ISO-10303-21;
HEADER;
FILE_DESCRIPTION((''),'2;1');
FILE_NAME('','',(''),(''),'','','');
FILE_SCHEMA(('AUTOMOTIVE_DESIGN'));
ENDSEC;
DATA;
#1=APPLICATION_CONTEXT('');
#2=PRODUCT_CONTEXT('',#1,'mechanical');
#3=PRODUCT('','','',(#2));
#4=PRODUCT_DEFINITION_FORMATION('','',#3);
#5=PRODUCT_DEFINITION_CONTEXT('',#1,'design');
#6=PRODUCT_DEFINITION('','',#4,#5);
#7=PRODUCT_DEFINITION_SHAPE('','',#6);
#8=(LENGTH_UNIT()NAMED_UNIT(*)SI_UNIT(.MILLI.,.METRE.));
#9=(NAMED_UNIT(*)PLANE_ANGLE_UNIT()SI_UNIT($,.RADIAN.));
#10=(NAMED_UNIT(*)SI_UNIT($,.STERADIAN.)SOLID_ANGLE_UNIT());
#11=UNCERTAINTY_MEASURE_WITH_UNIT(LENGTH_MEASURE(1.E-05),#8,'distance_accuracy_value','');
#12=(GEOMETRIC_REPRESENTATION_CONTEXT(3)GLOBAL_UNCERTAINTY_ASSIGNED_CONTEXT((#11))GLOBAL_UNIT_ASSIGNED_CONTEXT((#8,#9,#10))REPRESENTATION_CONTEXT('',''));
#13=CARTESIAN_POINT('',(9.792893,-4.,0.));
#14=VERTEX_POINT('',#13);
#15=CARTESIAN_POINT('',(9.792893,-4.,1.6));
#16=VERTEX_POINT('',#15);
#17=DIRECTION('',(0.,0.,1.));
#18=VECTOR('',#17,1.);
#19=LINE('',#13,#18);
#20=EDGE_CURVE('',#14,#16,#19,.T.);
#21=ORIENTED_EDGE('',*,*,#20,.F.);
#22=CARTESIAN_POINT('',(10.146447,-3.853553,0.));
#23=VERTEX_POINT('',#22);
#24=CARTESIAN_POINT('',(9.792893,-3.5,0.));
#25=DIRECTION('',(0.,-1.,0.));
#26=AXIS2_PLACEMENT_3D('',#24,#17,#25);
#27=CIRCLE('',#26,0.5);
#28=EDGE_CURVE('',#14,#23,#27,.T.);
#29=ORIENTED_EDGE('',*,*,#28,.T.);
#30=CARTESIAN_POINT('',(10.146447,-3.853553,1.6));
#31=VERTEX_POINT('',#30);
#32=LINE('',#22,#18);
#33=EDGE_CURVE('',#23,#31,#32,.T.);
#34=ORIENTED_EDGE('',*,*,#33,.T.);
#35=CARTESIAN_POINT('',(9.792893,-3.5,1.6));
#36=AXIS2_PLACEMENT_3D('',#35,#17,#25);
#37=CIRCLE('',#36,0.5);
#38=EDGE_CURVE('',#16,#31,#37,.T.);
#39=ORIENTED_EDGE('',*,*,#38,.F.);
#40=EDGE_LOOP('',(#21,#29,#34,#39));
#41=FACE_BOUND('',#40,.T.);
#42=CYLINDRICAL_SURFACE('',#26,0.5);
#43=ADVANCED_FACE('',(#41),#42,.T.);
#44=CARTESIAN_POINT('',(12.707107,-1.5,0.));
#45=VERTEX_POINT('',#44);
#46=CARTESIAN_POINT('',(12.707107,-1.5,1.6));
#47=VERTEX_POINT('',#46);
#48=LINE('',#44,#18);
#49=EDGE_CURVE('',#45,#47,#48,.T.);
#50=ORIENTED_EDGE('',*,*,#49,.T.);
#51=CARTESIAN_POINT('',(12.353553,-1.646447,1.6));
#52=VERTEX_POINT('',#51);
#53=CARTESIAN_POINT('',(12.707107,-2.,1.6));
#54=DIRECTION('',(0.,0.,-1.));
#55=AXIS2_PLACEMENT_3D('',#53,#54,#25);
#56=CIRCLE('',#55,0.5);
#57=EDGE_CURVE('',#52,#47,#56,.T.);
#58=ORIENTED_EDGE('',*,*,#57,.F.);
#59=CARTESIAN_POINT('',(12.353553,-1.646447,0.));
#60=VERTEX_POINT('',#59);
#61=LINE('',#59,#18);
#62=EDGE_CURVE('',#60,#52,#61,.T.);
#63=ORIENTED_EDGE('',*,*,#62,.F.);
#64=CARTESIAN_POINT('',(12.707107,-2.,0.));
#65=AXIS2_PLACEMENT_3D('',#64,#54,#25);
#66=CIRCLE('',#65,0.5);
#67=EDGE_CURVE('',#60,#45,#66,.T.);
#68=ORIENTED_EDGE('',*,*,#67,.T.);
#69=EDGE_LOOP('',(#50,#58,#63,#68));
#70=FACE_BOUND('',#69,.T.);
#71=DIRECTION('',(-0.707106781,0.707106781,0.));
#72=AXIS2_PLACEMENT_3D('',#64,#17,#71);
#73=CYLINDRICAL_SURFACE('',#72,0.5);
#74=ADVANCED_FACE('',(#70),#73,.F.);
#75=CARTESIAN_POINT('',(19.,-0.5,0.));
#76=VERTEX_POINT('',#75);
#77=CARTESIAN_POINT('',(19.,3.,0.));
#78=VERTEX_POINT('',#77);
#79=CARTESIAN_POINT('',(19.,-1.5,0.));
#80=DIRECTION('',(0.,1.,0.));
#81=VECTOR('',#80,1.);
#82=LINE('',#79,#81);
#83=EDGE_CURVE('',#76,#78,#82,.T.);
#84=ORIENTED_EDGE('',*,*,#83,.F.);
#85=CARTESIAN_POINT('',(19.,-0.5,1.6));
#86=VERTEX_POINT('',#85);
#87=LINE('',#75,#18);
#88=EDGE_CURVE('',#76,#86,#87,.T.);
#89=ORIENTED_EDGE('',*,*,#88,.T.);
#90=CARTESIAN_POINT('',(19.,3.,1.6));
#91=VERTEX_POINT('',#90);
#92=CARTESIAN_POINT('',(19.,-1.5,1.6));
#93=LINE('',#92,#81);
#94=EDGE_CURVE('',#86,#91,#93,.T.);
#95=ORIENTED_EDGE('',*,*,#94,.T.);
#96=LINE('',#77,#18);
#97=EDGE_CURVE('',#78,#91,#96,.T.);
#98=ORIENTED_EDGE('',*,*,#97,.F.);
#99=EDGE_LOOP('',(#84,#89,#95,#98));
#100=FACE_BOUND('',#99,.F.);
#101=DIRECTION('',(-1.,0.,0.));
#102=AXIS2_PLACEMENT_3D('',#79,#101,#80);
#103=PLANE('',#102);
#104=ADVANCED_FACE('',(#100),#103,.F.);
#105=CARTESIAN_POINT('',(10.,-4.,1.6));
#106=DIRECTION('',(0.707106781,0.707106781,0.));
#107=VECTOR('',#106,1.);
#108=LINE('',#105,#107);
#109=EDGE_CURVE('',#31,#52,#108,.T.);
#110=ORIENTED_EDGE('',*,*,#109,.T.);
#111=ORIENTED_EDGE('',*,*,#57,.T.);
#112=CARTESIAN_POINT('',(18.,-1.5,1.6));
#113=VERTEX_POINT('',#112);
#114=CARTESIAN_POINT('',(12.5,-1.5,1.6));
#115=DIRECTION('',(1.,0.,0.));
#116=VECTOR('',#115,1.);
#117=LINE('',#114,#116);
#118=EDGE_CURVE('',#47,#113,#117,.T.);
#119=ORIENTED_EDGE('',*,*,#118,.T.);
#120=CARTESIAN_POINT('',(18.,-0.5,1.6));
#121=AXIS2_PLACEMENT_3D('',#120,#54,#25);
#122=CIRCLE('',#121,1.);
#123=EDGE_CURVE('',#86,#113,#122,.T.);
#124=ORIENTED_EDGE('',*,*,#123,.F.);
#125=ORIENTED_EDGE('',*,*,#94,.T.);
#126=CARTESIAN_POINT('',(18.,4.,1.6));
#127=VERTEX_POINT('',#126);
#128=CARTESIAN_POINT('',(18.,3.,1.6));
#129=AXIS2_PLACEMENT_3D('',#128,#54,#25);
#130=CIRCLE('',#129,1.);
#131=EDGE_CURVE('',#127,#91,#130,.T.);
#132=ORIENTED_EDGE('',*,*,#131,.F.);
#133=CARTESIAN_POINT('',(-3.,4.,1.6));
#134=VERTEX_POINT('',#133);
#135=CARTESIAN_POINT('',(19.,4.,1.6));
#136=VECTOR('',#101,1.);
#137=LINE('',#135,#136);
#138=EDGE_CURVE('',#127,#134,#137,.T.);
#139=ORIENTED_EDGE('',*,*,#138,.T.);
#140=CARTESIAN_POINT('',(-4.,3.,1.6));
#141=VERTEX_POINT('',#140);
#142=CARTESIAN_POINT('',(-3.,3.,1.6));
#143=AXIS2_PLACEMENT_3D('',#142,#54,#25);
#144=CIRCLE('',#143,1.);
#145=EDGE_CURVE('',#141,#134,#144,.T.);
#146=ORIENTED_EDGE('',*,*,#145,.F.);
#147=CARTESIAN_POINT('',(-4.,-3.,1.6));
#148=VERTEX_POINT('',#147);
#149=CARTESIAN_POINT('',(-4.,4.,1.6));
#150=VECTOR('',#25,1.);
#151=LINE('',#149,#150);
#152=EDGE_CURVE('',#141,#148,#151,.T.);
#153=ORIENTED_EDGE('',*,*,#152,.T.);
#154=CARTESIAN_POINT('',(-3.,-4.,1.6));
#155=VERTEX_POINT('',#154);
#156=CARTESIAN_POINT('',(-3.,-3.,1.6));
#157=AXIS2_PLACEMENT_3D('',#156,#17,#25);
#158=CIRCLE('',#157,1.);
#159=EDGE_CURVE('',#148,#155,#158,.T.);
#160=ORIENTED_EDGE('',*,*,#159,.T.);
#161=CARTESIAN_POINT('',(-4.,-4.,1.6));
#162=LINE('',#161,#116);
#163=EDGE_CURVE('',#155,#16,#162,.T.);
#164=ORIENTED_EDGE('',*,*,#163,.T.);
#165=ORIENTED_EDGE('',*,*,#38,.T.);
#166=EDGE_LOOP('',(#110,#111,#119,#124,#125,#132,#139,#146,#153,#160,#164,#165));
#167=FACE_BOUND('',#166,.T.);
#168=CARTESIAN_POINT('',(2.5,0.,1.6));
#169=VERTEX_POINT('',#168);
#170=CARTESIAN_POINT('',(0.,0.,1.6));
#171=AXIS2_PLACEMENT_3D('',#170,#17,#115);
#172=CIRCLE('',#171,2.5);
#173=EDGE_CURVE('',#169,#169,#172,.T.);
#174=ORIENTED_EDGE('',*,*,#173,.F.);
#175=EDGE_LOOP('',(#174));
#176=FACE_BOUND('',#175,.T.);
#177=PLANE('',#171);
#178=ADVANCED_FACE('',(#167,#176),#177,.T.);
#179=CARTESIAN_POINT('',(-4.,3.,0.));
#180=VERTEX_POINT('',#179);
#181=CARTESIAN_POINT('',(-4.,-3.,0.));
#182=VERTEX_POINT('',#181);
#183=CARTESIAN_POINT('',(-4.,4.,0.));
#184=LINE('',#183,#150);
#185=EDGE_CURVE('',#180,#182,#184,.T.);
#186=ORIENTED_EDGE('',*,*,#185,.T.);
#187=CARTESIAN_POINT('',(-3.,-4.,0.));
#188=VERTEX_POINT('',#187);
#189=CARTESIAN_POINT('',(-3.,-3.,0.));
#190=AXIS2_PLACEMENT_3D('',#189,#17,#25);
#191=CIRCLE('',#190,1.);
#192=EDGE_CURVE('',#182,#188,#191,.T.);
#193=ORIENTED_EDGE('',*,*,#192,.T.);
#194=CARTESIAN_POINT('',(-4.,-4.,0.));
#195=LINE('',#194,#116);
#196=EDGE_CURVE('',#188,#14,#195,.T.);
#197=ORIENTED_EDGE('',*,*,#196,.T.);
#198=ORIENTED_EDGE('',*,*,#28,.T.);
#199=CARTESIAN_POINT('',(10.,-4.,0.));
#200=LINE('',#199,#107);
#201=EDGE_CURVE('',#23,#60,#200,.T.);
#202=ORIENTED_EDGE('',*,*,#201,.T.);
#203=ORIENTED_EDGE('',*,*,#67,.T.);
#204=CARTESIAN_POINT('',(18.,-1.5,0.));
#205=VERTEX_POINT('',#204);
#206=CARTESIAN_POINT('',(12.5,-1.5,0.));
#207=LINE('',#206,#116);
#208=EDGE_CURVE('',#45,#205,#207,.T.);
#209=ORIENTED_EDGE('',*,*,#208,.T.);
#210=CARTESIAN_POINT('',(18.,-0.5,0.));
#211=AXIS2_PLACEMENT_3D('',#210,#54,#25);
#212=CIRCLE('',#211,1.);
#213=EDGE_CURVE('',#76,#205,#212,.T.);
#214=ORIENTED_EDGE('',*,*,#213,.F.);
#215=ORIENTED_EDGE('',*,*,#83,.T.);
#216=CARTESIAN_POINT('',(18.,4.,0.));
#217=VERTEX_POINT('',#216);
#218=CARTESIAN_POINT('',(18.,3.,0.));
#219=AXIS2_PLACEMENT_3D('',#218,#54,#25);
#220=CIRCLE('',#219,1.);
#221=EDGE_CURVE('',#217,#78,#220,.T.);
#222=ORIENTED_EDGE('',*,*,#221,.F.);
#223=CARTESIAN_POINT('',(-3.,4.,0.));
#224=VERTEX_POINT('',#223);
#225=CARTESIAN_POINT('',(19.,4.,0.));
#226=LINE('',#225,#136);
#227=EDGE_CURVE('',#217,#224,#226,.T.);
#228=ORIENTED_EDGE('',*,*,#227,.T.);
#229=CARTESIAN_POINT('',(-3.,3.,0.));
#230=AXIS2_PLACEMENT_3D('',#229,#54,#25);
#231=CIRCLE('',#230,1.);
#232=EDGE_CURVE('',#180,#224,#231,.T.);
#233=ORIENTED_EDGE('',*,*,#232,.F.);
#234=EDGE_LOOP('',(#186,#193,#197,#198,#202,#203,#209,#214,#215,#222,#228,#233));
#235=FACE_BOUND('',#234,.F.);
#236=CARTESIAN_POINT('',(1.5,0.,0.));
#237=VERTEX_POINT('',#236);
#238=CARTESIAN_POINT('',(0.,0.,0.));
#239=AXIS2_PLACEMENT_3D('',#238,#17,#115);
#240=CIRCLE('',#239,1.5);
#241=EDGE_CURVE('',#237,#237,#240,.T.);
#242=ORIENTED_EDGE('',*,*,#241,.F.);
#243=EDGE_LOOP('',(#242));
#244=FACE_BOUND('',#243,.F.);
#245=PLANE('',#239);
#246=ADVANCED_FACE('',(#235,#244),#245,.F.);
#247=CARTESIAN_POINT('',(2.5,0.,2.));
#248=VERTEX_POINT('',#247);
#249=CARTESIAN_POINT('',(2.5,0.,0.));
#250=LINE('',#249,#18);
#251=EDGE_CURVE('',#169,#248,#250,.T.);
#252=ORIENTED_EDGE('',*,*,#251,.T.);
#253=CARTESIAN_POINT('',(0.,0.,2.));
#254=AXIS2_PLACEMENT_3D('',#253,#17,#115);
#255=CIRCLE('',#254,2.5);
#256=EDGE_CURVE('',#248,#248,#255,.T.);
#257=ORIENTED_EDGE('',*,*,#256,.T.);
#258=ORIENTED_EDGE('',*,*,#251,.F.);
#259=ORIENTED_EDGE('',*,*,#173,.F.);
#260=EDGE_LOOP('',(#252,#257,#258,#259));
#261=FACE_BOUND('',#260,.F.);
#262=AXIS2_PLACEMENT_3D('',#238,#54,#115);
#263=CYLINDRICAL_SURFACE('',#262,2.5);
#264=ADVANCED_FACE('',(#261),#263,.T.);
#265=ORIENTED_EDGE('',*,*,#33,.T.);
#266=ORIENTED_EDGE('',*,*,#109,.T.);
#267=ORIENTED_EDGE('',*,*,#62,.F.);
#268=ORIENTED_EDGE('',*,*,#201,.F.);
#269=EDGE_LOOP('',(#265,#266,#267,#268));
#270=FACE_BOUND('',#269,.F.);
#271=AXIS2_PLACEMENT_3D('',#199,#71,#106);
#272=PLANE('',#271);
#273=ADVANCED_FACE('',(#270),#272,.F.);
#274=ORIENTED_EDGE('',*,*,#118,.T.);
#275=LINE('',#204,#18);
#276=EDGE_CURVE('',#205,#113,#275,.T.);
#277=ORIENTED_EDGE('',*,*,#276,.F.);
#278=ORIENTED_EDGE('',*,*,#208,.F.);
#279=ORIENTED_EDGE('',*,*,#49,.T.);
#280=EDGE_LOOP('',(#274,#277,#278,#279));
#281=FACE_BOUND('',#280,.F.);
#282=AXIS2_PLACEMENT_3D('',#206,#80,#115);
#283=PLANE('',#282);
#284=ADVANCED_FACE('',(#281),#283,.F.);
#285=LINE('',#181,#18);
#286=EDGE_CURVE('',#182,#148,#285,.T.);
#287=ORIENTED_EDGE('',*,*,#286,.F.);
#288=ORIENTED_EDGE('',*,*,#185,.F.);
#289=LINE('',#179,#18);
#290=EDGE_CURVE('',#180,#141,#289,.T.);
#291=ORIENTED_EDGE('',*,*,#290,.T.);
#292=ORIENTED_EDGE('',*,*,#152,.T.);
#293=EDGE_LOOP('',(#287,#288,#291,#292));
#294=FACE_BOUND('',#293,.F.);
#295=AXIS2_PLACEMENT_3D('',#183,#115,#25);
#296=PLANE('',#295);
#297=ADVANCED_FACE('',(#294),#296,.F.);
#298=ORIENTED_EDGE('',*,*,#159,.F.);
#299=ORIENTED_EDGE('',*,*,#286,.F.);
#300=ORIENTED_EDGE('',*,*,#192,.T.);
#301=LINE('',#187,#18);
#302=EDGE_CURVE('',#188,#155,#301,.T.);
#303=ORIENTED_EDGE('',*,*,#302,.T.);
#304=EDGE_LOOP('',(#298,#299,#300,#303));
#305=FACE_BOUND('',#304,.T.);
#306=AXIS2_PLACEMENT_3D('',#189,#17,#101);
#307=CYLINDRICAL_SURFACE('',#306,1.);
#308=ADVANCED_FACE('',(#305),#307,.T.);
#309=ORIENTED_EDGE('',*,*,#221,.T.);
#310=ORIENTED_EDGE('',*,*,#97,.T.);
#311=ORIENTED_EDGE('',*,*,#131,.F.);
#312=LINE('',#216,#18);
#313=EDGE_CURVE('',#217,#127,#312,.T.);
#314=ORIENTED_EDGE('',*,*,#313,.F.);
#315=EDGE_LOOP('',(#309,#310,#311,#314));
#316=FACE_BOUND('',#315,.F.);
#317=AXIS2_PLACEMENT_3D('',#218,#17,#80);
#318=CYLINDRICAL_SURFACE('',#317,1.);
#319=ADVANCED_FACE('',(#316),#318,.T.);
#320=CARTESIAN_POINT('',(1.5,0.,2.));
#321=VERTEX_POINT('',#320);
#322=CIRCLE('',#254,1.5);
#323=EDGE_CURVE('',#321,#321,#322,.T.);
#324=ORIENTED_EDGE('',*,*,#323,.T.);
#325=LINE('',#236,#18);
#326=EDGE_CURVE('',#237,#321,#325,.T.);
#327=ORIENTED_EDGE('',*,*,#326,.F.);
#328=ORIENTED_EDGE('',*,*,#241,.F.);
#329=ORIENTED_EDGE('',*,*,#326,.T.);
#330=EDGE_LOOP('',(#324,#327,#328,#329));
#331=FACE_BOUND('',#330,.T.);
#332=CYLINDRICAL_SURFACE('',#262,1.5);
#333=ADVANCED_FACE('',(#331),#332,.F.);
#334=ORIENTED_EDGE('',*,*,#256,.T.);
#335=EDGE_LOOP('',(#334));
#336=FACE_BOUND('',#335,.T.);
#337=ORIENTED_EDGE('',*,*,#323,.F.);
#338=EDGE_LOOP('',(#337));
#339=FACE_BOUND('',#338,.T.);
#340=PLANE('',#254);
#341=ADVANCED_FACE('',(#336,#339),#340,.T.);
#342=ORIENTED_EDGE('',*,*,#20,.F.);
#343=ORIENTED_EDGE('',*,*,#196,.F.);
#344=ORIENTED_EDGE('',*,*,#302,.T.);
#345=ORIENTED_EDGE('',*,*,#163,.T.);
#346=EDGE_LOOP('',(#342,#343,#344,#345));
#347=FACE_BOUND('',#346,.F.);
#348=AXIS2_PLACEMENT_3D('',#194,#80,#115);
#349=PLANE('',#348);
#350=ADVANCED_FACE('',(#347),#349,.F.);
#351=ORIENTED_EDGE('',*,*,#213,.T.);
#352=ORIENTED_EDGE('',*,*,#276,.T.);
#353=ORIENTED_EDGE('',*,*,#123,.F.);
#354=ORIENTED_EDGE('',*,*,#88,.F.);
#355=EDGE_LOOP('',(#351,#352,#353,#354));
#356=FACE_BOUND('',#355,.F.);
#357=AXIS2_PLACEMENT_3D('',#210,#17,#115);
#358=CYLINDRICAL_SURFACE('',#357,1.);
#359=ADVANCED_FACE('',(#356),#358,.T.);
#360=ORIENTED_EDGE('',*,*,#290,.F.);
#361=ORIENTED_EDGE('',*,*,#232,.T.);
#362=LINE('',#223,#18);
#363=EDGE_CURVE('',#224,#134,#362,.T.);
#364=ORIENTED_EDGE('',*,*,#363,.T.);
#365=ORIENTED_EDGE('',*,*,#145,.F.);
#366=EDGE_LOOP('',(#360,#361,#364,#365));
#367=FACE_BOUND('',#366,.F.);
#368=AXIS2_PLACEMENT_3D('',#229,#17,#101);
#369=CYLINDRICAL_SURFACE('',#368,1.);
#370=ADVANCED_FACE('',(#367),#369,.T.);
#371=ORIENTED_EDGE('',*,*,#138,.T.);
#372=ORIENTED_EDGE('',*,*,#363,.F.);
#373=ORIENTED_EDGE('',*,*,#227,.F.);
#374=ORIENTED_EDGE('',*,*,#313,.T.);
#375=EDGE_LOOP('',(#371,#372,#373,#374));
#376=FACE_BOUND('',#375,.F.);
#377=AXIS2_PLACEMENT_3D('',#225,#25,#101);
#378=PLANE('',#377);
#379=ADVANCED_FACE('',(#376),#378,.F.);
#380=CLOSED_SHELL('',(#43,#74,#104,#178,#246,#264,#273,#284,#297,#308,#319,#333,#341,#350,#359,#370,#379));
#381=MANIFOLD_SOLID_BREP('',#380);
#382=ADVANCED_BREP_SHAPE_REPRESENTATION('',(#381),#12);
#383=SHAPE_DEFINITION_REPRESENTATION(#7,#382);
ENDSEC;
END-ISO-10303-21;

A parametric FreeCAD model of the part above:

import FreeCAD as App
import Part
import Sketcher

V = App.Vector
Q = App.Units.Quantity


def edges_at(feature, points):
    """Names of the edges that pass closest to the given points."""
    edges = feature.Shape.Edges
    near = lambda p: min(range(len(edges)), key=lambda i: edges[i].distToShape(Part.Vertex(*p))[0])
    return sorted({f"Edge{near(p) + 1}" for p in points})


def add_polygon(sketch, points):
    """Adds a closed chain of lines whose ends are joined by coincident constraints."""
    first, n = sketch.GeometryCount, len(points)
    for a, b in zip(points, points[1:] + points[:1]):
        sketch.addGeometry(Part.LineSegment(App.Vector(*a, 0), App.Vector(*b, 0)), False)
    for i in range(n):
        sketch.addConstraint(Sketcher.Constraint("Coincident", first + i, 2, first + (i + 1) % n, 1))

doc = App.newDocument("Part")
body = doc.addObject("PartDesign::Body", "Body")

# Sketch on XY plane
sketch1 = body.newObject("Sketcher::SketchObject", "Sketch")
sketch1.AttachmentSupport = (doc.getObject("XY_Plane"), [""])
sketch1.MapMode = "FlatFace"
add_polygon(sketch1, [(-4, 4), (-4, -4), (10, -4), (12.5, -1.5), (19, -1.5), (19, 4)])  # lines 0-5
sketch1.addGeometry(Part.Circle(V(0, 0, 0), V(0, 0, 1), 2.5), False)  # 6
sketch1.addConstraint(Sketcher.Constraint("Vertical", 0))
sketch1.addConstraint(Sketcher.Constraint("Horizontal", 1))
sketch1.addConstraint(Sketcher.Constraint("Horizontal", 3))
sketch1.addConstraint(Sketcher.Constraint("Vertical", 4))
sketch1.addConstraint(Sketcher.Constraint("Horizontal", 5))
sketch1.addConstraint(Sketcher.Constraint("Coincident", 6, 3, -1, 1))
sketch1.addConstraint(Sketcher.Constraint("Diameter", 6, Q("5 mm")))
sketch1.addConstraint(Sketcher.Constraint("DistanceX", 1, 1, 1, 2, Q("14 mm")))
sketch1.addConstraint(Sketcher.Constraint("DistanceX", 5, 2, 5, 1, Q("23 mm")))
sketch1.addConstraint(Sketcher.Constraint("DistanceY", 0, 2, 0, 1, Q("8 mm")))
sketch1.addConstraint(Sketcher.Constraint("Angle", 2, Q("45 deg")))
sketch1.addConstraint(Sketcher.Constraint("DistanceY", 4, 1, 4, 2, Q("5.5 mm")))
sketch1.addConstraint(Sketcher.Constraint("DistanceX", 0, 2, -1, 1, Q("4 mm")))
sketch1.addConstraint(Sketcher.Constraint("DistanceY", 0, 2, -1, 1, Q("4 mm")))
pad1 = body.newObject("PartDesign::Pad", "Pad")
pad1.Profile = sketch1
pad1.Length = 1.6

# Sketch on XY plane
sketch2 = body.newObject("Sketcher::SketchObject", "Sketch001")
sketch2.AttachmentSupport = (doc.getObject("XY_Plane"), [""])
sketch2.MapMode = "FlatFace"
sketch2.addGeometry(Part.Circle(V(0, 0, 0), V(0, 0, 1), 2.5), False)
sketch2.addGeometry(Part.Circle(V(0, 0, 0), V(0, 0, 1), 1.5), False)
sketch2.addConstraint(Sketcher.Constraint("Coincident", 0, 3, -1, 1))
sketch2.addConstraint(Sketcher.Constraint("Coincident", 1, 3, -1, 1))
sketch2.addConstraint(Sketcher.Constraint("Diameter", 0, Q("5 mm")))
sketch2.addConstraint(Sketcher.Constraint("Diameter", 1, Q("3 mm")))
pad2 = body.newObject("PartDesign::Pad", "Pad001")
pad2.Profile = sketch2
pad2.Length = 2
doc.recompute()

fillet = body.newObject("PartDesign::Fillet", "Fillet")
fillet.Base = (pad2, edges_at(pad2, [
    (-4, 4, 0.8),
    (19, 4, 0.8),
    (19, -1.5, 0.8),
    (-4, -4, 0.8),
]))
fillet.Radius = 1
doc.recompute()

fillet2 = body.newObject("PartDesign::Fillet", "Fillet001")
fillet2.Base = (fillet, edges_at(fillet, [(12.5, -1.5, 0.8), (10, -4, 0.8)]))
fillet2.Radius = 0.5

doc.recompute()
